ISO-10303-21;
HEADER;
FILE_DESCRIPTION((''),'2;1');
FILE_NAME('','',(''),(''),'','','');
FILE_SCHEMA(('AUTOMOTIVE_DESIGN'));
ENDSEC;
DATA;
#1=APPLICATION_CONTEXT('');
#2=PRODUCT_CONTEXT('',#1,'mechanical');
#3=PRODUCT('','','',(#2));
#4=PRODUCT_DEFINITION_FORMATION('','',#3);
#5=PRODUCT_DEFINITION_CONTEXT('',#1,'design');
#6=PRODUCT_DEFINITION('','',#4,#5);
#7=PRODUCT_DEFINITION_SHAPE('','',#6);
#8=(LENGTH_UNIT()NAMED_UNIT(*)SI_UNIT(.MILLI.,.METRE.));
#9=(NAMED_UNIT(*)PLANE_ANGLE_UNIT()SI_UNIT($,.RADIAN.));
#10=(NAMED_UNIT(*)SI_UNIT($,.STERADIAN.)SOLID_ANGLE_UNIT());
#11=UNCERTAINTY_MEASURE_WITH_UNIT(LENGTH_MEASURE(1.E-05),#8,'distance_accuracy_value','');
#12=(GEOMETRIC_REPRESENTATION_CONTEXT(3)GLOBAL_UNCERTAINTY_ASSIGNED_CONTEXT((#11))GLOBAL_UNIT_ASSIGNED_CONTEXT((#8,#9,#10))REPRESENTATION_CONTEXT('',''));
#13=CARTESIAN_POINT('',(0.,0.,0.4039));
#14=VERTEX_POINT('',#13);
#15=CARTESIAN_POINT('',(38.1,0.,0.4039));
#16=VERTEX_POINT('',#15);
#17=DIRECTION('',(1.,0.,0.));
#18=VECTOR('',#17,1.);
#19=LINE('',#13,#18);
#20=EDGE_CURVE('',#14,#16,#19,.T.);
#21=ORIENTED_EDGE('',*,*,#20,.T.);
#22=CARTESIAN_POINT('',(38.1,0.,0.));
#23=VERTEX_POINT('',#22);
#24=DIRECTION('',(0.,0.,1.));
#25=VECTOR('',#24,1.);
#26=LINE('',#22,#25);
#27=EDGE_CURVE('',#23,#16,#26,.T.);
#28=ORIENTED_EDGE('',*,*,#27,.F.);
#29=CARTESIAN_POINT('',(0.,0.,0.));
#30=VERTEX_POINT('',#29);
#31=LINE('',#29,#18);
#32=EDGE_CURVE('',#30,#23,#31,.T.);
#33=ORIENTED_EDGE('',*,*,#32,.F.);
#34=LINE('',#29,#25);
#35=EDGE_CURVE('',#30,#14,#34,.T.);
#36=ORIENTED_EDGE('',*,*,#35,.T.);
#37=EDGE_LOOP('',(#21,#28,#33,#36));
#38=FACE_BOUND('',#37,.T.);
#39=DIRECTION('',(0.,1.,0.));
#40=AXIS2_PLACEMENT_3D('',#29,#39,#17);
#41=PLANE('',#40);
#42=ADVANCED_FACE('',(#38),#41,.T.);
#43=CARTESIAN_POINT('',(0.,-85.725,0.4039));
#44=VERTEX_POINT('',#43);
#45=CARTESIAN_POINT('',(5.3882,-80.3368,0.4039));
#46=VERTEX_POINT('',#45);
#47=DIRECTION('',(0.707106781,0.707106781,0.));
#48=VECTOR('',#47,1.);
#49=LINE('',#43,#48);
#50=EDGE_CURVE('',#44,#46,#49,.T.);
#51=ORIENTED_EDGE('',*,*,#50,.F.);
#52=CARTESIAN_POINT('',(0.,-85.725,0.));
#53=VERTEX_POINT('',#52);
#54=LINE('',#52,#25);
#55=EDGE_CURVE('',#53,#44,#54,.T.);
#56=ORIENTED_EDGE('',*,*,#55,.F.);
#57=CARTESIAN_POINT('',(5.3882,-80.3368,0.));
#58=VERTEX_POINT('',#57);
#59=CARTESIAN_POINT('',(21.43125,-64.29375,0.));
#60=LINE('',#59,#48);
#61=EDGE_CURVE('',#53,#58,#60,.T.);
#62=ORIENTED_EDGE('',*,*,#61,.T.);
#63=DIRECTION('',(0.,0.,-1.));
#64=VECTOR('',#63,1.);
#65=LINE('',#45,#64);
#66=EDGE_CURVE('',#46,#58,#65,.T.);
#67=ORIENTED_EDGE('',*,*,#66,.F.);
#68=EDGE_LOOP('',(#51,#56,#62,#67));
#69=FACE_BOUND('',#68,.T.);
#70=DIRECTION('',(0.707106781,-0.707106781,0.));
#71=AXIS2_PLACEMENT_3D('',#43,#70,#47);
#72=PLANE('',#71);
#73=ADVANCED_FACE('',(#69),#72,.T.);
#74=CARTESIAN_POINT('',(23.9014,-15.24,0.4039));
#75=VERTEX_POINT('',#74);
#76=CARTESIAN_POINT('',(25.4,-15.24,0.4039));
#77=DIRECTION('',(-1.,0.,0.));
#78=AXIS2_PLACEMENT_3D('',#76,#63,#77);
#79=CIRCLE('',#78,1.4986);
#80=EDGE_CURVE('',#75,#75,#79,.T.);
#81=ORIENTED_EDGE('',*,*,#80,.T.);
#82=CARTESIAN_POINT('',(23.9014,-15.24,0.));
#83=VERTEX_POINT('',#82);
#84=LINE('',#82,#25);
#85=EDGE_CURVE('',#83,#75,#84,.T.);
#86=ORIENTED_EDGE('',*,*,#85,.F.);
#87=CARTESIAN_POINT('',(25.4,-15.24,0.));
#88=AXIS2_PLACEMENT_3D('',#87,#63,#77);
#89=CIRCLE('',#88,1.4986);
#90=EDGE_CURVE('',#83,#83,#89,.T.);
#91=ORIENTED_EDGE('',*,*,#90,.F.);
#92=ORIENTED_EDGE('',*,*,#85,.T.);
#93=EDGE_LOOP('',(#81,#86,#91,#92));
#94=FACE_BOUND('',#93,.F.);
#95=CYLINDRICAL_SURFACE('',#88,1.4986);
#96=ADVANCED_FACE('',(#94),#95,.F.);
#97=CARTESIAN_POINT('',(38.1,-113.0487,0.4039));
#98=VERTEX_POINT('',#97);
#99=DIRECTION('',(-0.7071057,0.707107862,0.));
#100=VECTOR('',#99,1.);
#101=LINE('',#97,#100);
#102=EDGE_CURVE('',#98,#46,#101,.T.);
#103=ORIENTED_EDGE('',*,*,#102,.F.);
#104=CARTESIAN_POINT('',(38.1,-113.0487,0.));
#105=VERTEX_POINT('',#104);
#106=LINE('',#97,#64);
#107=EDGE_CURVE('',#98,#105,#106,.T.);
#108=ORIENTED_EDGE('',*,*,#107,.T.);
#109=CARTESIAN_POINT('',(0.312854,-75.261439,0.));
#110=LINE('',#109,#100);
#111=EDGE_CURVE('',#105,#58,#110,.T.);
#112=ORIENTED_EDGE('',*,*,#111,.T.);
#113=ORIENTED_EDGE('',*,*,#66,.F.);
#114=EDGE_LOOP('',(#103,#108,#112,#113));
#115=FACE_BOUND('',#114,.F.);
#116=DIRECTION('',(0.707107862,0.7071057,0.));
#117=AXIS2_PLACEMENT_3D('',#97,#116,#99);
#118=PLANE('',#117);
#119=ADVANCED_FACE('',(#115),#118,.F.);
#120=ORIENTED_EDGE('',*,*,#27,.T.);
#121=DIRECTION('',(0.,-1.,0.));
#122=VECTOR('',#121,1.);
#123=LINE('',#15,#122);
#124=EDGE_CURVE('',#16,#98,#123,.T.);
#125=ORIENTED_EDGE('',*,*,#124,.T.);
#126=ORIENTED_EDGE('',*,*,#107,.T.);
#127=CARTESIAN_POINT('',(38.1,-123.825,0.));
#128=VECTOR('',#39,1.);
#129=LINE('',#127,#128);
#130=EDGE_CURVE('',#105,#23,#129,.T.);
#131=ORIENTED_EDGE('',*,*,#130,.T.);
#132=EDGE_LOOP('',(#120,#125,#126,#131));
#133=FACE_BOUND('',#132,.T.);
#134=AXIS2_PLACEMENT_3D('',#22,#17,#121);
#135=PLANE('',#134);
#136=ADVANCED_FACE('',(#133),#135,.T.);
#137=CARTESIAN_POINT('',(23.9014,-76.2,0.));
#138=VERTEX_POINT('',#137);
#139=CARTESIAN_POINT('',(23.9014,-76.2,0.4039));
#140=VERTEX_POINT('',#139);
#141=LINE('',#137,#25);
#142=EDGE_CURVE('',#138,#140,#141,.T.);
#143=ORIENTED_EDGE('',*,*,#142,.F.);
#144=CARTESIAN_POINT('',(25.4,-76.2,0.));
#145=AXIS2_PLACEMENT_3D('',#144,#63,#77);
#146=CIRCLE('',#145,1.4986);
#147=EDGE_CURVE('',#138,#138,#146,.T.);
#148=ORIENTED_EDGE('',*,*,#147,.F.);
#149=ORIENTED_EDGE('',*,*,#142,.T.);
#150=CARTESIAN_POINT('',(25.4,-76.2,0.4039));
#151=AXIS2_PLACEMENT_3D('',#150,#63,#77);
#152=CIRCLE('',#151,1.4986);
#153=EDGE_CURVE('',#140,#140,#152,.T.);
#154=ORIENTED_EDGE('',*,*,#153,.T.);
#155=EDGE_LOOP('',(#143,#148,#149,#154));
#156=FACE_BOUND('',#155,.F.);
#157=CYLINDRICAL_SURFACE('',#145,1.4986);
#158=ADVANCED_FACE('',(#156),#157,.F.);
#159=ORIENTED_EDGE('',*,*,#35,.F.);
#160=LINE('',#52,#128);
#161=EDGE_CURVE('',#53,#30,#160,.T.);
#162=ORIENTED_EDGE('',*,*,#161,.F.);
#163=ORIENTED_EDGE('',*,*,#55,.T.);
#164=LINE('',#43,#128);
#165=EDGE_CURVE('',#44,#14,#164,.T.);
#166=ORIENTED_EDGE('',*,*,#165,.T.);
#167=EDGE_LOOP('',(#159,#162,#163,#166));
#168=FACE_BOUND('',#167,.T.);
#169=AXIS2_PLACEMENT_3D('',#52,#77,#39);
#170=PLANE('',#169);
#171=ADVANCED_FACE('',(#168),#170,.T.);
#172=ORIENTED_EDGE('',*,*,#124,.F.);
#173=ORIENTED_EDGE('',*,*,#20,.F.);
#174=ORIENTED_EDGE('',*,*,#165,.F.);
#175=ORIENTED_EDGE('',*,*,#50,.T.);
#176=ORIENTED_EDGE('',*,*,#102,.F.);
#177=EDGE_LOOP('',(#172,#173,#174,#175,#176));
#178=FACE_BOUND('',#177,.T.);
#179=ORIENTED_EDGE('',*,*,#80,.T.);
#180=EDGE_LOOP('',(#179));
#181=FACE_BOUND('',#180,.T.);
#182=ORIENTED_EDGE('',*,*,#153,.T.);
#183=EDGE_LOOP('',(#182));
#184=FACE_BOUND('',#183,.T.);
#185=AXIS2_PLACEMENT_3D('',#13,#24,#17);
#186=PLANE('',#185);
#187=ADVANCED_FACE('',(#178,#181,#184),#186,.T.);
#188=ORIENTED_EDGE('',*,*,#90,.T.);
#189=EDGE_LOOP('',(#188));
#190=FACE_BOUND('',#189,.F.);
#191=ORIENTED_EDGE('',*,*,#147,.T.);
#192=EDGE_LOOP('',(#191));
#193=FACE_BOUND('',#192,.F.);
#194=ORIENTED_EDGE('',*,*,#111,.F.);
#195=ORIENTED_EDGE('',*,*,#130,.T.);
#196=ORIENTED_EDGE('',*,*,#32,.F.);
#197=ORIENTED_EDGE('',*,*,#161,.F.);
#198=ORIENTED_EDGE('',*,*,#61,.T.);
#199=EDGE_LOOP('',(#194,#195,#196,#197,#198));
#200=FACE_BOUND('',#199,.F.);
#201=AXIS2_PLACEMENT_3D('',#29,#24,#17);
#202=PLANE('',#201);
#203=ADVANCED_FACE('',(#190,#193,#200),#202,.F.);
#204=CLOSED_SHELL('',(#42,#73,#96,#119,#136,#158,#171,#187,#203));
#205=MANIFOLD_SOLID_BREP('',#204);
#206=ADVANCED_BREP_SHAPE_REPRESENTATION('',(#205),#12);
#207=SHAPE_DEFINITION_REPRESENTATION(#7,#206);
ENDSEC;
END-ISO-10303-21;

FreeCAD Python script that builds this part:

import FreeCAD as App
import Part
import Sketcher

V = App.Vector
Q = App.Units.Quantity

doc = App.newDocument("Part")
params = doc.addObject("Spreadsheet::Sheet", "Params")
for row, (alias, value) in enumerate([
    ("sketch1_width", "1.5 in"),
    ("sketch1_height", "3.375 in"),
    ("pad1_length", "0.0159016 in"),
    ("sketch2_width", "1.5 in"),
    ("pad2_length", "0.0159016 in"),
    ("sketch3_length", "0.3 in"),
    ("pocket1_length", "1 in"),
    ("sketch4_diameter", "0.118 in"),
    ("pocket2_length", "1 in"),
], start=1):
    params.set(f"A{row}", alias)
    params.set(f"B{row}", "=" + value)
    params.setAlias(f"B{row}", alias)

body = doc.addObject("PartDesign::Body", "Body")

# Sketch on XY plane
sketch1 = doc.addObject("Sketcher::SketchObject", "Sketch")
body.addObject(sketch1)
sketch1.AttachmentSupport = (doc.XY_Plane, [""])
sketch1.MapMode = "FlatFace"
sketch1.addGeometry(Part.LineSegment(V(38.1, 0, 0), V(0, 0, 0)), False)
sketch1.addGeometry(Part.LineSegment(V(0, 0, 0), V(0, -85.725, 0)), False)
sketch1.addGeometry(Part.LineSegment(V(0, -85.725, 0), V(38.1, -85.725, 0)), False)
sketch1.addGeometry(Part.LineSegment(V(38.1, -85.725, 0), V(38.1, 0, 0)), False)
sketch1.addConstraint(Sketcher.Constraint("Coincident", 0, 2, 1, 1))
sketch1.addConstraint(Sketcher.Constraint("Coincident", 1, 2, 2, 1))
sketch1.addConstraint(Sketcher.Constraint("Coincident", 2, 2, 3, 1))
sketch1.addConstraint(Sketcher.Constraint("Coincident", 3, 2, 0, 1))
sketch1.addConstraint(Sketcher.Constraint("Horizontal", 0))
sketch1.addConstraint(Sketcher.Constraint("Vertical", 1))
sketch1.addConstraint(Sketcher.Constraint("Horizontal", 2))
sketch1.addConstraint(Sketcher.Constraint("Vertical", 3))
sketch1.addConstraint(Sketcher.Constraint("Coincident", 0, 2, -1, 1))
sketch1.addConstraint(Sketcher.Constraint("DistanceX", 0, 2, 0, 1, Q("1.5 in")))
sketch1.addConstraint(Sketcher.Constraint("DistanceY", 1, 2, 1, 1, Q("3.375 in")))
sketch1.setExpression("Constraints[9]", "Params.sketch1_width")
sketch1.setExpression("Constraints[10]", "Params.sketch1_height")
pad1 = doc.addObject("PartDesign::Pad", "Pad")
body.addObject(pad1)
pad1.Profile = sketch1
pad1.setExpression("Length", "Params.pad1_length")

# Sketch on XY plane
sketch2 = doc.addObject("Sketcher::SketchObject", "Sketch001")
body.addObject(sketch2)
sketch2.AttachmentSupport = (doc.XY_Plane, [""])
sketch2.MapMode = "FlatFace"
sketch2.addGeometry(Part.LineSegment(V(38.1, -85.725, 0), V(0, -85.725, 0)), False)
sketch2.addGeometry(Part.LineSegment(V(0, -85.725, 0), V(38.1, -123.825, 0)), False)
sketch2.addGeometry(Part.LineSegment(V(38.1, -123.825, 0), V(38.1, -85.725, 0)), False)
sketch2.addConstraint(Sketcher.Constraint("Coincident", 0, 2, 1, 1))
sketch2.addConstraint(Sketcher.Constraint("Coincident", 1, 2, 2, 1))
sketch2.addConstraint(Sketcher.Constraint("Coincident", 2, 2, 0, 1))
sketch2.addConstraint(Sketcher.Constraint("Horizontal", 0))
sketch2.addConstraint(Sketcher.Constraint("Vertical", 2))
sketch2.addConstraint(Sketcher.Constraint("PointOnObject", 0, 2, -2))
sketch2.addConstraint(Sketcher.Constraint("Equal", 0, 2))
sketch2.addConstraint(Sketcher.Constraint("DistanceX", 0, 2, 0, 1, Q("1.5 in")))
sketch2.addConstraint(Sketcher.Constraint("DistanceY", 0, 2, -1, 1, Q("3.375 in")))
sketch2.setExpression("Constraints[7]", "Params.sketch2_width")
pad2 = doc.addObject("PartDesign::Pad", "Pad001")
body.addObject(pad2)
pad2.Profile = sketch2
pad2.setExpression("Length", "Params.pad2_length")

# Sketch on XY plane
sketch3 = doc.addObject("Sketcher::SketchObject", "Sketch002")
body.addObject(sketch3)
sketch3.AttachmentSupport = (doc.XY_Plane, [""])
sketch3.MapMode = "FlatFace"
sketch3.AttachmentOffset = App.Placement(V(0, 0, 0.0159016 * 25.4), App.Rotation())
sketch3.addGeometry(Part.LineSegment(V(5.3882, -80.3368, 0), V(0, -85.725, 0)), False)
sketch3.addGeometry(Part.LineSegment(V(0, -85.725, 0), V(38.1, -123.825, 0)), False)
sketch3.addGeometry(Part.LineSegment(V(38.1, -123.825, 0), V(38.1, -113.0487, 0)), False)
sketch3.addGeometry(Part.LineSegment(V(38.1, -113.0487, 0), V(5.3882, -80.3368, 0)), False)
sketch3.addConstraint(Sketcher.Constraint("Coincident", 0, 2, 1, 1))
sketch3.addConstraint(Sketcher.Constraint("Coincident", 1, 2, 2, 1))
sketch3.addConstraint(Sketcher.Constraint("Coincident", 2, 2, 3, 1))
sketch3.addConstraint(Sketcher.Constraint("Coincident", 3, 2, 0, 1))
sketch3.addConstraint(Sketcher.Constraint("Vertical", 2))
sketch3.addConstraint(Sketcher.Constraint("PointOnObject", 0, 2, -2))
sketch3.addConstraint(Sketcher.Constraint("Perpendicular", 0, 1))
sketch3.addConstraint(Sketcher.Constraint("Parallel", 1, 3))
sketch3.addConstraint(Sketcher.Constraint("Distance", 0, Q("0.3 in")))
sketch3.addConstraint(Sketcher.Constraint("Angle", 0, Q("-135 deg")))
sketch3.addConstraint(Sketcher.Constraint("DistanceX", -1, 1, 1, 2, Q("1.5 in")))
sketch3.addConstraint(Sketcher.Constraint("DistanceY", 0, 2, -1, 1, Q("3.375 in")))
sketch3.setExpression("Constraints[8]", "Params.sketch3_length")
pocket1 = doc.addObject("PartDesign::Pocket", "Pocket")
body.addObject(pocket1)
pocket1.Profile = sketch3
pocket1.setExpression("Length", "Params.pocket1_length")

# Sketch on XY plane
sketch4 = doc.addObject("Sketcher::SketchObject", "Sketch003")
body.addObject(sketch4)
sketch4.AttachmentSupport = (doc.XY_Plane, [""])
sketch4.MapMode = "FlatFace"
sketch4.addGeometry(Part.Circle(V(25.4, -15.24, 0), V(0, 0, 1), 1.4986), False)
sketch4.addGeometry(Part.Circle(V(25.4, -76.2, 0), V(0, 0, 1), 1.4986), False)
sketch4.addConstraint(Sketcher.Constraint("Equal", 0, 1))
sketch4.addConstraint(Sketcher.Constraint("Vertical", 0, 3, 1, 3))
sketch4.addConstraint(Sketcher.Constraint("Diameter", 0, Q("0.118 in")))
sketch4.addConstraint(Sketcher.Constraint("DistanceY", 0, 3, -1, 1, Q("0.6 in")))
sketch4.addConstraint(Sketcher.Constraint("DistanceX", -1, 1, 0, 3, Q("1 in")))
sketch4.addConstraint(Sketcher.Constraint("DistanceY", 1, 3, -1, 1, Q("3 in")))
sketch4.setExpression("Constraints[2]", "Params.sketch4_diameter")
pocket2 = doc.addObject("PartDesign::Pocket", "Pocket001")
body.addObject(pocket2)
pocket2.Profile = sketch4
pocket2.setExpression("Length", "Params.pocket2_length")
pocket2.Reversed = True

doc.recompute()
